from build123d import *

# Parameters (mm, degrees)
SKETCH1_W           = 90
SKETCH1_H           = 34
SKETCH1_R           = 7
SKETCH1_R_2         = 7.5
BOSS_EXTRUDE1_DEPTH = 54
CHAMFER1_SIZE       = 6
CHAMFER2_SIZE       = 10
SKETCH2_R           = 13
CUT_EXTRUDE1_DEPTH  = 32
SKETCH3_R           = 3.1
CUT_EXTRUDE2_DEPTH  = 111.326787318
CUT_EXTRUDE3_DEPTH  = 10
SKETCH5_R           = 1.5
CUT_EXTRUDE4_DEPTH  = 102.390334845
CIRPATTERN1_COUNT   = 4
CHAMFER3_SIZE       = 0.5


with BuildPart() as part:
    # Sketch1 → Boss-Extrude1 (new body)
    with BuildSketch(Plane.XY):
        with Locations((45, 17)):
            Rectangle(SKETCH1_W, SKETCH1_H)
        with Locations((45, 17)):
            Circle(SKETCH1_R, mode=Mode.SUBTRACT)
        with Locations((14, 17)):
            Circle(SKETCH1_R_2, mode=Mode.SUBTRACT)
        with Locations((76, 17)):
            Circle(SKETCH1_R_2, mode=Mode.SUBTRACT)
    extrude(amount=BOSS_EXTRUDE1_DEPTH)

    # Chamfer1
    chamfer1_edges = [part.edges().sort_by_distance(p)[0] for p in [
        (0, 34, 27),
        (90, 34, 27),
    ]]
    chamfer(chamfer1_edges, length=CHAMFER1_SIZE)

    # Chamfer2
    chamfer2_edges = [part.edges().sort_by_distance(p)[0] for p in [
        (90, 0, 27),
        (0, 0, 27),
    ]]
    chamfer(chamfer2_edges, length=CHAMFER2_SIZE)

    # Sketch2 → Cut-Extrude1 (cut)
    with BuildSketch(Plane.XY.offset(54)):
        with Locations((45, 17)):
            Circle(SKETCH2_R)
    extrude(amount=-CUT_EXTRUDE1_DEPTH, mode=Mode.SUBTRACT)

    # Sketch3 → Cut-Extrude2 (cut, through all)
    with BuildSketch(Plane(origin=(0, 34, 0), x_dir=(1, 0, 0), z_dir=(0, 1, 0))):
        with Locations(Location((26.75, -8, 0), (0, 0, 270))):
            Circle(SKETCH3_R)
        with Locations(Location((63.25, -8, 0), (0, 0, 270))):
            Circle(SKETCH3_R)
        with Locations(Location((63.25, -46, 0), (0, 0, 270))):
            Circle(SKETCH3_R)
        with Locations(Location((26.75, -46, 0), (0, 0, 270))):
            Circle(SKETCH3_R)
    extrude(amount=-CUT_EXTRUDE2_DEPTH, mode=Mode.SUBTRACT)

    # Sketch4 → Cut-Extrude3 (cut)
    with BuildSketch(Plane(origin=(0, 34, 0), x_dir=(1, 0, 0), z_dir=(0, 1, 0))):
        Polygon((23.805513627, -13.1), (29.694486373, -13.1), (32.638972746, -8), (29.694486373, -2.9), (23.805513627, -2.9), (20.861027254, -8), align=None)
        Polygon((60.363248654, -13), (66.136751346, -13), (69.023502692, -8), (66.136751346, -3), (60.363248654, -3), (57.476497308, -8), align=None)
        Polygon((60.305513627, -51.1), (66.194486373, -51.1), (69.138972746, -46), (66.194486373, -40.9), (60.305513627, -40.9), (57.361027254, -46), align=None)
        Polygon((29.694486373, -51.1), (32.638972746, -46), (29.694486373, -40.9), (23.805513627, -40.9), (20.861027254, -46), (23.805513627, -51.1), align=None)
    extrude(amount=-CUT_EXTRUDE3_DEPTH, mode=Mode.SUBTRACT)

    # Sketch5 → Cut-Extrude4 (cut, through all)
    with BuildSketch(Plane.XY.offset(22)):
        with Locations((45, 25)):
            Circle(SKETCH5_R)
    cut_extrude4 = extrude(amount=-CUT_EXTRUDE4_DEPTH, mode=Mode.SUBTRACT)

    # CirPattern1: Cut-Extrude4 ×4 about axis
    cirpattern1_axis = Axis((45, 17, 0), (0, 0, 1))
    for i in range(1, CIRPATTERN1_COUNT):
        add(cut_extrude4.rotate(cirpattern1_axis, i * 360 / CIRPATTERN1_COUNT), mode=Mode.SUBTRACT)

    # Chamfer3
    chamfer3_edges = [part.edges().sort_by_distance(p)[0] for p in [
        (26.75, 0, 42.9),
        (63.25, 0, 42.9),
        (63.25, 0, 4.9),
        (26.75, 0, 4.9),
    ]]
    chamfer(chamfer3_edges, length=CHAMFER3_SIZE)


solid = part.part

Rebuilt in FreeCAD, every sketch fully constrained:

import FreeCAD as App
import Part
import Sketcher
Q = App.Units.Quantity


def edges_at(feature, points):
    """Names of the edges that pass closest to the given points."""
    edges = feature.Shape.Edges
    near = lambda p: min(range(len(edges)), key=lambda i: edges[i].distToShape(Part.Vertex(*p))[0])
    return sorted({f"Edge{near(p) + 1}" for p in points})


def add_polygon(sketch, points):
    """Adds a closed chain of lines whose ends are joined by coincident constraints."""
    first, n = sketch.GeometryCount, len(points)
    for a, b in zip(points, points[1:] + points[:1]):
        sketch.addGeometry(Part.LineSegment(App.Vector(*a, 0), App.Vector(*b, 0)), False)
    for i in range(n):
        sketch.addConstraint(Sketcher.Constraint("Coincident", first + i, 2, first + (i + 1) % n, 1))

doc = App.newDocument("Part")
body = doc.addObject("PartDesign::Body", "Body")

sketch1 = body.newObject("Sketcher::SketchObject", "Sketch")
sketch1.AttachmentSupport = (doc.getObject("XY_Plane"), [""])
sketch1.MapMode = "FlatFace"
add_polygon(sketch1, [(0, 34), (0, 0), (90, 0), (90, 34)])
sketch1.addGeometry(Part.Circle(App.Vector(14, 17, 0), App.Vector(0, 0, 1), 7.5), False)
sketch1.addGeometry(Part.Circle(App.Vector(45, 17, 0), App.Vector(0, 0, 1), 7), False)
sketch1.addGeometry(Part.Circle(App.Vector(76, 17, 0), App.Vector(0, 0, 1), 7.5), False)
sketch1.addConstraint([
    Sketcher.Constraint("Vertical", 0),
    Sketcher.Constraint("Horizontal", 1),
    Sketcher.Constraint("Vertical", 2),
    Sketcher.Constraint("Horizontal", 3),
    Sketcher.Constraint("Coincident", 0, 2, -1, 1),
    Sketcher.Constraint("Equal", 4, 6),
    Sketcher.Constraint("Horizontal", 4, 3, 5, 3),
    Sketcher.Constraint("Horizontal", 5, 3, 6, 3),
    Sketcher.Constraint("Diameter", 4, Q("15 mm")),
    Sketcher.Constraint("Diameter", 5, Q("14 mm")),
    Sketcher.Constraint("DistanceX", 1, 1, 1, 2, Q("90 mm")),
    Sketcher.Constraint("DistanceY", 0, 2, 0, 1, Q("34 mm")),
    Sketcher.Constraint("DistanceX", -1, 1, 4, 3, Q("14 mm")),
    Sketcher.Constraint("DistanceY", -1, 1, 4, 3, Q("17 mm")),
    Sketcher.Constraint("DistanceX", -1, 1, 5, 3, Q("45 mm")),
    Sketcher.Constraint("DistanceX", -1, 1, 6, 3, Q("76 mm")),
])
pad1 = body.newObject("PartDesign::Pad", "Pad")
pad1.Profile = sketch1
pad1.Length = 54
doc.recompute()

chamfer = body.newObject("PartDesign::Chamfer", "Chamfer")
chamfer.Base = (pad1, edges_at(pad1, [(0, 34, 27), (90, 34, 27)]))
chamfer.Size = 6
doc.recompute()

chamfer2 = body.newObject("PartDesign::Chamfer", "Chamfer001")
chamfer2.Base = (chamfer, edges_at(chamfer, [(90, 0, 27), (0, 0, 27)]))
chamfer2.Size = 10

sketch2 = body.newObject("Sketcher::SketchObject", "Sketch001")
sketch2.AttachmentSupport = (doc.getObject("XY_Plane"), [""])
sketch2.MapMode = "FlatFace"
sketch2.AttachmentOffset = App.Placement(App.Vector(0, 0, 54), App.Rotation())
sketch2.addGeometry(Part.Circle(App.Vector(45, 17, 0), App.Vector(0, 0, 1), 13), False)
sketch2.addConstraint([
    Sketcher.Constraint("Diameter", 0, Q("26 mm")),
    Sketcher.Constraint("DistanceX", -1, 1, 0, 3, Q("45 mm")),
    Sketcher.Constraint("DistanceY", -1, 1, 0, 3, Q("17 mm")),
])
pocket1 = body.newObject("PartDesign::Pocket", "Pocket")
pocket1.Profile = sketch2
pocket1.Length = 32

sketch3 = body.newObject("Sketcher::SketchObject", "Sketch002")
sketch3.AttachmentSupport = (doc.getObject("XZ_Plane"), [""])
sketch3.MapMode = "FlatFace"
sketch3.AttachmentOffset = App.Placement(App.Vector(0, 0, -34), App.Rotation())
sketch3.addGeometry([
    Part.Circle(App.Vector(26.75, 8, 0), App.Vector(0, 0, 1), 3.1),
    Part.Circle(App.Vector(63.25, 8, 0), App.Vector(0, 0, 1), 3.1),
    Part.Circle(App.Vector(63.25, 46, 0), App.Vector(0, 0, 1), 3.1),
    Part.Circle(App.Vector(26.75, 46, 0), App.Vector(0, 0, 1), 3.1),
], False)
sketch3.addConstraint([
    Sketcher.Constraint("Equal", 0, 1),
    Sketcher.Constraint("Equal", 1, 2),
    Sketcher.Constraint("Equal", 2, 3),
    Sketcher.Constraint("Horizontal", 0, 3, 1, 3),
    Sketcher.Constraint("Horizontal", 2, 3, 3, 3),
    Sketcher.Constraint("Vertical", 1, 3, 2, 3),
    Sketcher.Constraint("Vertical", 0, 3, 3, 3),
    Sketcher.Constraint("Diameter", 0, Q("6.2 mm")),
    Sketcher.Constraint("DistanceY", -1, 1, 0, 3, Q("8 mm")),
    Sketcher.Constraint("DistanceY", -1, 1, 2, 3, Q("46 mm")),
    Sketcher.Constraint("DistanceX", 0, 3, 1, 3, Q("36.5 mm")),
    Sketcher.Constraint("DistanceX", -1, 1, 0, 3, Q("26.75 mm")),
])
pocket2 = body.newObject("PartDesign::Pocket", "Pocket001")
pocket2.Profile = sketch3
pocket2.Type = "ThroughAll"
pocket2.Reversed = True

sketch4 = body.newObject("Sketcher::SketchObject", "Sketch003")
sketch4.AttachmentSupport = (doc.getObject("XZ_Plane"), [""])
sketch4.MapMode = "FlatFace"
sketch4.AttachmentOffset = App.Placement(App.Vector(0, 0, -34), App.Rotation())
add_polygon(sketch4, [(23.805514, 13.1), (29.694486, 13.1), (32.638973, 8), (29.694486, 2.9), (23.805514, 2.9), (20.861027, 8)])
add_polygon(sketch4, [(60.363249, 13), (66.136751, 13), (69.023503, 8), (66.136751, 3), (60.363249, 3), (57.476497, 8)])
add_polygon(sketch4, [(60.305514, 51.1), (66.194486, 51.1), (69.138973, 46), (66.194486, 40.9), (60.305514, 40.9), (57.361027, 46)])
add_polygon(sketch4, [(29.694486, 51.1), (32.638973, 46), (29.694486, 40.9), (23.805514, 40.9), (20.861027, 46), (23.805514, 51.1)])
sketch4.addConstraint([
    Sketcher.Constraint("Horizontal", 0),
    Sketcher.Constraint("Horizontal", 3),
    Sketcher.Constraint("Horizontal", 6),
    Sketcher.Constraint("Horizontal", 9),
    Sketcher.Constraint("Horizontal", 12),
    Sketcher.Constraint("Horizontal", 15),
    Sketcher.Constraint("Horizontal", 20),
    Sketcher.Constraint("Horizontal", 23),
    Sketcher.Constraint("Parallel", 1, 4),
    Sketcher.Constraint("Parallel", 2, 5),
    Sketcher.Constraint("Parallel", 4, 7),
    Sketcher.Constraint("Parallel", 5, 8),
    Sketcher.Constraint("Parallel", 7, 10),
    Sketcher.Constraint("Parallel", 8, 11),
    Sketcher.Constraint("Parallel", 10, 13),
    Sketcher.Constraint("Parallel", 11, 14),
    Sketcher.Constraint("Parallel", 13, 16),
    Sketcher.Constraint("Parallel", 14, 17),
    Sketcher.Constraint("Parallel", 16, 18),
    Sketcher.Constraint("Parallel", 17, 19),
    Sketcher.Constraint("Parallel", 18, 21),
    Sketcher.Constraint("Parallel", 19, 22),
    Sketcher.Constraint("Horizontal", 1, 2, 4, 2),
    Sketcher.Constraint("Horizontal", 4, 2, 7, 2),
    Sketcher.Constraint("Horizontal", 7, 2, 10, 2),
    Sketcher.Constraint("Horizontal", 13, 2, 16, 2),
    Sketcher.Constraint("Horizontal", 16, 2, 18, 2),
    Sketcher.Constraint("Horizontal", 15, 2, 19, 2),
    Sketcher.Constraint("Horizontal", 18, 2, 21, 2),
    Sketcher.Constraint("Horizontal", 17, 2, 22, 2),
    Sketcher.Constraint("Vertical", 0, 2, 2, 2),
    Sketcher.Constraint("Vertical", 3, 2, 5, 2),
    Sketcher.Constraint("Vertical", 6, 2, 8, 2),
    Sketcher.Constraint("Vertical", 12, 2, 14, 2),
    Sketcher.Constraint("Vertical", 1, 2, 18, 2),
    Sketcher.Constraint("Vertical", 2, 2, 19, 2),
    Sketcher.Constraint("Vertical", 5, 2, 20, 2),
    Sketcher.Constraint("Equal", 3, 12),
    Sketcher.Constraint("Angle", 1, Q("-60 deg")),
    Sketcher.Constraint("DistanceY", -1, 1, 1, 2, Q("8 mm")),
    Sketcher.Constraint("DistanceY", -1, 1, 6, 2, Q("13 mm")),
    Sketcher.Constraint("DistanceY", -1, 1, 13, 2, Q("46 mm")),
    Sketcher.Constraint("DistanceY", -1, 1, 0, 2, Q("13.1 mm")),
    Sketcher.Constraint("DistanceX", 0, 1, 0, 2, Q("5.888973 mm")),
    Sketcher.Constraint("DistanceX", 6, 1, 6, 2, Q("5.773503 mm")),
    Sketcher.Constraint("DistanceX", -1, 1, 6, 2, Q("66.136751 mm")),
    Sketcher.Constraint("DistanceX", 1, 2, 6, 2, Q("33.497779 mm")),
    Sketcher.Constraint("DistanceX", 10, 2, 12, 2, Q("8.717989 mm")),
])
pocket3 = body.newObject("PartDesign::Pocket", "Pocket002")
pocket3.Profile = sketch4
pocket3.Length = 10
pocket3.Reversed = True

sketch5 = body.newObject("Sketcher::SketchObject", "Sketch004")
sketch5.AttachmentSupport = (doc.getObject("XY_Plane"), [""])
sketch5.MapMode = "FlatFace"
sketch5.AttachmentOffset = App.Placement(App.Vector(0, 0, 22), App.Rotation())
sketch5.addGeometry(Part.Circle(App.Vector(45, 25, 0), App.Vector(0, 0, 1), 1.5), False)
sketch5.addConstraint([
    Sketcher.Constraint("Diameter", 0, Q("3 mm")),
    Sketcher.Constraint("DistanceX", -1, 1, 0, 3, Q("45 mm")),
    Sketcher.Constraint("DistanceY", -1, 1, 0, 3, Q("25 mm")),
])
pocket4 = body.newObject("PartDesign::Pocket", "Pocket003")
pocket4.Profile = sketch5
pocket4.Type = "ThroughAll"
doc.recompute()

datumline = body.newObject("PartDesign::Line", "DatumLine")
datumline.Placement = App.Placement(App.Vector(45, 17, 0), App.Rotation(App.Vector(0, 0, 1), App.Vector(0, 0, 1)))
polarpattern = body.newObject("PartDesign::PolarPattern", "PolarPattern")
polarpattern.Originals = [pocket4]
polarpattern.Axis = (datumline, [""])
polarpattern.Angle = 360
polarpattern.Occurrences = 4
body.Tip = polarpattern
doc.recompute()

chamfer3 = body.newObject("PartDesign::Chamfer", "Chamfer002")
chamfer3.Base = (polarpattern, edges_at(polarpattern, [
    (26.75, 0, 42.9),
    (63.25, 0, 42.9),
    (63.25, 0, 4.9),
    (26.75, 0, 4.9),
]))
chamfer3.Size = 0.5

doc.recompute()
